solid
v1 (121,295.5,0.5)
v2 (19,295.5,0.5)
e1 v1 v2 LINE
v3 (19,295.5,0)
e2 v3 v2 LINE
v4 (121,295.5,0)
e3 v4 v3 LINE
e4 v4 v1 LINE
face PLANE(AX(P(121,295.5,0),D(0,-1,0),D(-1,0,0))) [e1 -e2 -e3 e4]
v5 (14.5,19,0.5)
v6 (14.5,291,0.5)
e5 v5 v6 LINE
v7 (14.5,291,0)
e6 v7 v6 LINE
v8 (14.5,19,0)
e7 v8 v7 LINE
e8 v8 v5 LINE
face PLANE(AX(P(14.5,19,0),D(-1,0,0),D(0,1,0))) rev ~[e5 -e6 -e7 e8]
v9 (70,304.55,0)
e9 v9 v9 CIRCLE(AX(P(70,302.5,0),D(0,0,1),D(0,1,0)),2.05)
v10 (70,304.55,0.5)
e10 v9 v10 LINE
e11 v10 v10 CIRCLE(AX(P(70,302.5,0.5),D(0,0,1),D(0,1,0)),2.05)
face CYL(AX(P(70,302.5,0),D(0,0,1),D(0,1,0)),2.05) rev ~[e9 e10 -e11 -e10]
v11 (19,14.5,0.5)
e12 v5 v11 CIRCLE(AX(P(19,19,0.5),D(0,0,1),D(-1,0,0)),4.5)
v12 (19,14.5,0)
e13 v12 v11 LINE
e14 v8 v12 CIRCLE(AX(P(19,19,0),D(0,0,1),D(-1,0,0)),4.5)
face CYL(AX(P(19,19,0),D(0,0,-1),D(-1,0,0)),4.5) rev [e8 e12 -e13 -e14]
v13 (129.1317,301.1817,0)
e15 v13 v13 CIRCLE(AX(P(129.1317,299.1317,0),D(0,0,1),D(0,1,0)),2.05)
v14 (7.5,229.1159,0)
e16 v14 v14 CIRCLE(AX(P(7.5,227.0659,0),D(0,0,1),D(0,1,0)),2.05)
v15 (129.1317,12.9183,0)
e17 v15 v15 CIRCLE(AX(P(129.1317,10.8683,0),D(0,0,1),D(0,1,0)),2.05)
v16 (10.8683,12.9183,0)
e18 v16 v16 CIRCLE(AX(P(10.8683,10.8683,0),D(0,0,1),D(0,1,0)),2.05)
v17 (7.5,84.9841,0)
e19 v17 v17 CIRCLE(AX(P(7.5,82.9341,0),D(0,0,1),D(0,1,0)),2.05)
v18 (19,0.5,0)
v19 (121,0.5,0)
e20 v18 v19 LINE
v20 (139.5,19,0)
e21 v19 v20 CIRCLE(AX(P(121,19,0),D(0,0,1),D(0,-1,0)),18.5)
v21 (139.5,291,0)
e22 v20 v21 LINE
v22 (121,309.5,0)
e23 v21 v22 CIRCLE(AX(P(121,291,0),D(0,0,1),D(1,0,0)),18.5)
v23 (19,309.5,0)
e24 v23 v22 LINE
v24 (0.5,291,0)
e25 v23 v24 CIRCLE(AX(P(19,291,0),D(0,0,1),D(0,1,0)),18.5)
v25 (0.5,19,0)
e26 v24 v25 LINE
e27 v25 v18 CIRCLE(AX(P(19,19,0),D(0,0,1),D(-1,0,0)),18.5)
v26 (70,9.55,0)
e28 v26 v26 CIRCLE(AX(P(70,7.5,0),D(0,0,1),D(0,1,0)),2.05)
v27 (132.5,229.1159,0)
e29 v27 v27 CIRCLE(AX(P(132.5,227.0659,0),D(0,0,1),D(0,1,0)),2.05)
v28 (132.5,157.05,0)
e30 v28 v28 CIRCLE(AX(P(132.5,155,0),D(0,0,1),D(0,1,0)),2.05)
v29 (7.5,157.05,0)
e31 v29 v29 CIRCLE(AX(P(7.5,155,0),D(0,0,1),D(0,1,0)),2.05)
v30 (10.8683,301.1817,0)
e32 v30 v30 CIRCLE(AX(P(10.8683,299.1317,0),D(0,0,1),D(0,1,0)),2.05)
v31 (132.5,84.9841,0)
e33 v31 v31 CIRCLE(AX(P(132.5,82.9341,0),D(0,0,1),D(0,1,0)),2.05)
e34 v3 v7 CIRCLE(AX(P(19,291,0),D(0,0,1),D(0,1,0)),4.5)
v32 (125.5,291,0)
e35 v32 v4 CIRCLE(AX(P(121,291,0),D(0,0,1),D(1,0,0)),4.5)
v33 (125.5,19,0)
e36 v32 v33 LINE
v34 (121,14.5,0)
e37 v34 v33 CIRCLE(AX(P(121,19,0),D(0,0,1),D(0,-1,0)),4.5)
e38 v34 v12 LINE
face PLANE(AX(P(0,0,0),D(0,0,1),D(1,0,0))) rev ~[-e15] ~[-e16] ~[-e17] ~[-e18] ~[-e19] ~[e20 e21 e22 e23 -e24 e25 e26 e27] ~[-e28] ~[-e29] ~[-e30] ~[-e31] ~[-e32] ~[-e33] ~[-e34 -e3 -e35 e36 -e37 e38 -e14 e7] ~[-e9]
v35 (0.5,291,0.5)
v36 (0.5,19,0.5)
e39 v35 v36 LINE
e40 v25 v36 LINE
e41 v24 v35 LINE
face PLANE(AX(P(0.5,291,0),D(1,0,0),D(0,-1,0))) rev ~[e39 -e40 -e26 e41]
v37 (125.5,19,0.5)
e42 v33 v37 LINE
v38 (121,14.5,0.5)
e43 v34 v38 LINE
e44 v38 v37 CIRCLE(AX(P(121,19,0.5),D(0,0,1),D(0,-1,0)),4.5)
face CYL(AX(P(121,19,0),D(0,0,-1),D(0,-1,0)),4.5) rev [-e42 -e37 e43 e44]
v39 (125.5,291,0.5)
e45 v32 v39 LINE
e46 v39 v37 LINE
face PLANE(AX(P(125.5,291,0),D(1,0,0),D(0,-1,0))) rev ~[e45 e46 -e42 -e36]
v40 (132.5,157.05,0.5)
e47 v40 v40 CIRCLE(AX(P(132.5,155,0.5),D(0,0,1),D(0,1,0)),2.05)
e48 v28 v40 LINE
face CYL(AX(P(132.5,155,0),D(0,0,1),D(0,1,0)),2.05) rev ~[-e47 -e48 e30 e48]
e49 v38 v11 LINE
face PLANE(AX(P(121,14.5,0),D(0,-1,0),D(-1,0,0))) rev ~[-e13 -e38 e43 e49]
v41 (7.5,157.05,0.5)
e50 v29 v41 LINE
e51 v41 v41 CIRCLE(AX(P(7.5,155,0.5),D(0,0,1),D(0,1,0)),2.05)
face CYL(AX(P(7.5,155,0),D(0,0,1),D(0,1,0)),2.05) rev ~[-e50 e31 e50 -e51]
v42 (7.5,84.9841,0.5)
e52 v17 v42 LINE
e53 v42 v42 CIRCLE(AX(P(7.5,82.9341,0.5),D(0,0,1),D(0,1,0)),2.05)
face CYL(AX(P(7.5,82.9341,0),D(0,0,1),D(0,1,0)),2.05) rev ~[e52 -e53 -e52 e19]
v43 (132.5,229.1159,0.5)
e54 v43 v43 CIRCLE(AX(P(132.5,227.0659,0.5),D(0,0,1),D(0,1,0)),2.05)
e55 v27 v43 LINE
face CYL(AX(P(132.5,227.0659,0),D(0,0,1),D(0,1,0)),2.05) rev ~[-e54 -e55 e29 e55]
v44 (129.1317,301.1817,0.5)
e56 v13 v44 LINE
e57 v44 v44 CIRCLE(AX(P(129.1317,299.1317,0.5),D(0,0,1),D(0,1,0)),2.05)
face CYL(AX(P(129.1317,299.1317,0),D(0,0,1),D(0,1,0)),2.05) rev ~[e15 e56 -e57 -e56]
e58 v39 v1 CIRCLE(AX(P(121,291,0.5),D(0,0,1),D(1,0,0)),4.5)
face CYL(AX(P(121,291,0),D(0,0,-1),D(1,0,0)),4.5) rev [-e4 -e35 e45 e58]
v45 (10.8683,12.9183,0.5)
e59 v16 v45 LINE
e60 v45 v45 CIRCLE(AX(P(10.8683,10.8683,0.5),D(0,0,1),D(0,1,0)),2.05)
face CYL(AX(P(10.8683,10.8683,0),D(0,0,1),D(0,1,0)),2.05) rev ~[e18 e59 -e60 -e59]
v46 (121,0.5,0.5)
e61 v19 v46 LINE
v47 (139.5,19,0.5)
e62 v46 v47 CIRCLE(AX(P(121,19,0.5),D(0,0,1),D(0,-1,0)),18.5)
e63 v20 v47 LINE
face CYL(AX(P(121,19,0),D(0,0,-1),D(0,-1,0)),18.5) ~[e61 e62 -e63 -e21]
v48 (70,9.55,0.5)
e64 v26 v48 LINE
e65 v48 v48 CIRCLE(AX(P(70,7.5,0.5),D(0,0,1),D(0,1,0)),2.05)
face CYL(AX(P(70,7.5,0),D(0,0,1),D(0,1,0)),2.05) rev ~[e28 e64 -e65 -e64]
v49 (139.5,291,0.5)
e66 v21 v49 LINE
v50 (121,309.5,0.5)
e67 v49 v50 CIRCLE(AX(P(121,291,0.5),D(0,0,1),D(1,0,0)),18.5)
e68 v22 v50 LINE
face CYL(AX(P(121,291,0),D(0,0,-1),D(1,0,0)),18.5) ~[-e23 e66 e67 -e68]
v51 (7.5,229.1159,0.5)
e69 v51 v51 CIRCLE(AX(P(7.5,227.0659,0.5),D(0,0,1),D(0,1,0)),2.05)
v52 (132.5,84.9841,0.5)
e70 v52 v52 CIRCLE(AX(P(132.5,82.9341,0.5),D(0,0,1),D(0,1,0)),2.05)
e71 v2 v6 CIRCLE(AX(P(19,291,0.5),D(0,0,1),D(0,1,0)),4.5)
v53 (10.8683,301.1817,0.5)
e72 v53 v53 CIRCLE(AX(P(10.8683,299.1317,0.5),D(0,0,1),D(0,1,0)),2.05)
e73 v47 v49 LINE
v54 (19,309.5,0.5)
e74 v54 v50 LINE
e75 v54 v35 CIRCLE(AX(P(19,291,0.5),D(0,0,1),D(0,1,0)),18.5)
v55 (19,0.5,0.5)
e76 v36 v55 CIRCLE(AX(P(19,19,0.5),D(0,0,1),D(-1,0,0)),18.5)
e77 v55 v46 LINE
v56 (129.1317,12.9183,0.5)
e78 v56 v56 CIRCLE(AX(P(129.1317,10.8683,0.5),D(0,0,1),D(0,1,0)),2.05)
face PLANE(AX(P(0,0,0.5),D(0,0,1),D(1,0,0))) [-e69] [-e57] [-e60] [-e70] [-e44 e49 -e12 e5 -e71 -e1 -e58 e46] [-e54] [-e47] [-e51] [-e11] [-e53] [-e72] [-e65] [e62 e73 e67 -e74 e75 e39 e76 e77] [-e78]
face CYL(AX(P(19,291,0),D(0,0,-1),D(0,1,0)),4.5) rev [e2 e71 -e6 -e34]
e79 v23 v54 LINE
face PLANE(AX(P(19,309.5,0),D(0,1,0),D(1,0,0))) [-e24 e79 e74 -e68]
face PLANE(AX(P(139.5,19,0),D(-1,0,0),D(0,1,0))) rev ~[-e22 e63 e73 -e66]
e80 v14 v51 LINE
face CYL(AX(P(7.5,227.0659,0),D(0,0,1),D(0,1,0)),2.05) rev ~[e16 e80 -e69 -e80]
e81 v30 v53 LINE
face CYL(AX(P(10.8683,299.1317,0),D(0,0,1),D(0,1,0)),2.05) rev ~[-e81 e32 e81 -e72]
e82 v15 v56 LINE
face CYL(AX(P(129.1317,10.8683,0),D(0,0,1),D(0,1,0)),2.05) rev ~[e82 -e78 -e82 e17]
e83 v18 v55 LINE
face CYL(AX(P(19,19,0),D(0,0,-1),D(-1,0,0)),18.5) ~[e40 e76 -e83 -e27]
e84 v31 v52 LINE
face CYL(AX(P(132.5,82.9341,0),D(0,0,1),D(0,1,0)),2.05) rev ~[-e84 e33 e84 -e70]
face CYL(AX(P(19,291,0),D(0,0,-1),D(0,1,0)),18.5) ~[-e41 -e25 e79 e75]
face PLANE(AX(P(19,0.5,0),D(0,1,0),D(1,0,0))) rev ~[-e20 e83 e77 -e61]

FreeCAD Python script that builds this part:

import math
import FreeCAD as App
import Part
import Sketcher
from FreeCAD import Vector
Q = App.Units.Quantity

doc = App.newDocument("Part")
body = doc.addObject("PartDesign::Body", "Body")

sketch1 = body.newObject("Sketcher::SketchObject", "Sketch")
sketch1.AttachmentSupport = (doc.getObject("XY_Plane"), [""])
sketch1.MapMode = "FlatFace"
sketch1.addGeometry(Part.LineSegment(Vector(139.5, 19, 0), Vector(139.5, 291, 0)), False)
sketch1.addGeometry(Part.ArcOfCircle(Part.Circle(Vector(121, 291, 0), Vector(0, 0, 1), 18.5), math.radians(0), math.radians(90)), False)
sketch1.addGeometry(Part.LineSegment(Vector(121, 309.5, 0), Vector(19, 309.5, 0)), False)
sketch1.addGeometry(Part.ArcOfCircle(Part.Circle(Vector(19, 291, 0), Vector(0, 0, 1), 18.5), math.radians(90), math.radians(180)), False)
sketch1.addGeometry(Part.LineSegment(Vector(0.5, 291, 0), Vector(0.5, 19, 0)), False)
sketch1.addGeometry(Part.ArcOfCircle(Part.Circle(Vector(19, 19, 0), Vector(0, 0, 1), 18.5), math.radians(180), math.radians(270)), False)
sketch1.addGeometry(Part.LineSegment(Vector(19, 0.5, 0), Vector(121, 0.5, 0)), False)
sketch1.addGeometry(Part.ArcOfCircle(Part.Circle(Vector(121, 19, 0), Vector(0, 0, 1), 18.5), math.radians(-90), math.radians(0)), False)
sketch1.addGeometry(Part.ArcOfCircle(Part.Circle(Vector(121, 291, 0), Vector(0, 0, 1), 4.5), math.radians(0), math.radians(90)), False)
sketch1.addGeometry(Part.LineSegment(Vector(125.5, 291, 0), Vector(125.5, 19, 0)), False)
sketch1.addGeometry(Part.ArcOfCircle(Part.Circle(Vector(121, 19, 0), Vector(0, 0, 1), 4.5), math.radians(-90), math.radians(0)), False)
sketch1.addGeometry(Part.LineSegment(Vector(121, 14.5, 0), Vector(19, 14.5, 0)), False)
sketch1.addGeometry(Part.ArcOfCircle(Part.Circle(Vector(19, 19, 0), Vector(0, 0, 1), 4.5), math.radians(180), math.radians(270)), False)
sketch1.addGeometry(Part.LineSegment(Vector(14.5, 19, 0), Vector(14.5, 291, 0)), False)
sketch1.addGeometry(Part.ArcOfCircle(Part.Circle(Vector(19, 291, 0), Vector(0, 0, 1), 4.5), math.radians(90), math.radians(180)), False)
sketch1.addGeometry(Part.LineSegment(Vector(19, 295.5, 0), Vector(121, 295.5, 0)), False)
sketch1.addConstraint(Sketcher.Constraint("Tangent", 0, 2, 1, 1))
sketch1.addConstraint(Sketcher.Constraint("Tangent", 1, 2, 2, 1))
sketch1.addConstraint(Sketcher.Constraint("Tangent", 2, 2, 3, 1))
sketch1.addConstraint(Sketcher.Constraint("Tangent", 3, 2, 4, 1))
sketch1.addConstraint(Sketcher.Constraint("Tangent", 4, 2, 5, 1))
sketch1.addConstraint(Sketcher.Constraint("Tangent", 5, 2, 6, 1))
sketch1.addConstraint(Sketcher.Constraint("Tangent", 6, 2, 7, 1))
sketch1.addConstraint(Sketcher.Constraint("Tangent", 7, 2, 0, 1))
sketch1.addConstraint(Sketcher.Constraint("Tangent", 8, 1, 9, 1))
sketch1.addConstraint(Sketcher.Constraint("Tangent", 9, 2, 10, 2))
sketch1.addConstraint(Sketcher.Constraint("Tangent", 10, 1, 11, 1))
sketch1.addConstraint(Sketcher.Constraint("Tangent", 11, 2, 12, 2))
sketch1.addConstraint(Sketcher.Constraint("Tangent", 12, 1, 13, 1))
sketch1.addConstraint(Sketcher.Constraint("Tangent", 13, 2, 14, 2))
sketch1.addConstraint(Sketcher.Constraint("Tangent", 14, 1, 15, 1))
sketch1.addConstraint(Sketcher.Constraint("Tangent", 15, 2, 8, 2))
sketch1.addConstraint(Sketcher.Constraint("Vertical", 0))
sketch1.addConstraint(Sketcher.Constraint("Horizontal", 2))
sketch1.addConstraint(Sketcher.Constraint("Vertical", 4))
sketch1.addConstraint(Sketcher.Constraint("Horizontal", 6))
sketch1.addConstraint(Sketcher.Constraint("Vertical", 9))
sketch1.addConstraint(Sketcher.Constraint("Horizontal", 11))
sketch1.addConstraint(Sketcher.Constraint("Vertical", 13))
sketch1.addConstraint(Sketcher.Constraint("Horizontal", 15))
sketch1.addConstraint(Sketcher.Constraint("Coincident", 8, 3, 1, 3))
sketch1.addConstraint(Sketcher.Constraint("Coincident", 10, 3, 7, 3))
sketch1.addConstraint(Sketcher.Constraint("Coincident", 12, 3, 5, 3))
sketch1.addConstraint(Sketcher.Constraint("Equal", 1, 3))
sketch1.addConstraint(Sketcher.Constraint("Equal", 3, 5))
sketch1.addConstraint(Sketcher.Constraint("Equal", 5, 7))
sketch1.addConstraint(Sketcher.Constraint("Equal", 12, 14))
sketch1.addConstraint(Sketcher.Constraint("DistanceX", -1, 1, 3, 2, Q("0.5 mm")))
sketch1.addConstraint(Sketcher.Constraint("DistanceY", -1, 1, 5, 2, Q("0.5 mm")))
sketch1.addConstraint(Sketcher.Constraint("Radius", 1, Q("18.5 mm")))
sketch1.addConstraint(Sketcher.Constraint("Radius", 8, Q("4.5 mm")))
sketch1.addConstraint(Sketcher.Constraint("DistanceX", 2, 2, 2, 1, Q("102 mm")))
sketch1.addConstraint(Sketcher.Constraint("DistanceY", 0, 1, 0, 2, Q("272 mm")))
pad1 = body.newObject("PartDesign::Pad", "Pad")
pad1.Profile = sketch1
pad1.Length = 0.5

sketch2 = body.newObject("Sketcher::SketchObject", "Sketch001")
sketch2.AttachmentSupport = (doc.getObject("XY_Plane"), [""])
sketch2.MapMode = "FlatFace"
sketch2.addGeometry(Part.Circle(Vector(129.1317, 299.1317, 0), Vector(0, 0, 1), 2.05), False)
sketch2.addGeometry(Part.Circle(Vector(70, 302.5, 0), Vector(0, 0, 1), 2.05), False)
sketch2.addGeometry(Part.Circle(Vector(10.8683, 299.1317, 0), Vector(0, 0, 1), 2.05), False)
sketch2.addGeometry(Part.Circle(Vector(7.5, 227.0659, 0), Vector(0, 0, 1), 2.05), False)
sketch2.addGeometry(Part.Circle(Vector(132.5, 227.0659, 0), Vector(0, 0, 1), 2.05), False)
sketch2.addGeometry(Part.Circle(Vector(132.5, 155, 0), Vector(0, 0, 1), 2.05), False)
sketch2.addGeometry(Part.Circle(Vector(7.5, 155, 0), Vector(0, 0, 1), 2.05), False)
sketch2.addGeometry(Part.Circle(Vector(132.5, 82.9341, 0), Vector(0, 0, 1), 2.05), False)
sketch2.addGeometry(Part.Circle(Vector(129.1317, 10.8683, 0), Vector(0, 0, 1), 2.05), False)
sketch2.addGeometry(Part.Circle(Vector(70, 7.5, 0), Vector(0, 0, 1), 2.05), False)
sketch2.addGeometry(Part.Circle(Vector(10.8683, 10.8683, 0), Vector(0, 0, 1), 2.05), False)
sketch2.addGeometry(Part.Circle(Vector(7.5, 82.9341, 0), Vector(0, 0, 1), 2.05), False)
sketch2.addConstraint(Sketcher.Constraint("Equal", 0, 1))
sketch2.addConstraint(Sketcher.Constraint("Equal", 1, 2))
sketch2.addConstraint(Sketcher.Constraint("Equal", 2, 3))
sketch2.addConstraint(Sketcher.Constraint("Equal", 3, 4))
sketch2.addConstraint(Sketcher.Constraint("Equal", 4, 5))
sketch2.addConstraint(Sketcher.Constraint("Equal", 5, 6))
sketch2.addConstraint(Sketcher.Constraint("Equal", 6, 7))
sketch2.addConstraint(Sketcher.Constraint("Equal", 7, 8))
sketch2.addConstraint(Sketcher.Constraint("Equal", 8, 9))
sketch2.addConstraint(Sketcher.Constraint("Equal", 9, 10))
sketch2.addConstraint(Sketcher.Constraint("Equal", 10, 11))
sketch2.addConstraint(Sketcher.Constraint("Horizontal", 0, 3, 2, 3))
sketch2.addConstraint(Sketcher.Constraint("Horizontal", 3, 3, 4, 3))
sketch2.addConstraint(Sketcher.Constraint("Horizontal", 5, 3, 6, 3))
sketch2.addConstraint(Sketcher.Constraint("Horizontal", 8, 3, 10, 3))
sketch2.addConstraint(Sketcher.Constraint("Horizontal", 7, 3, 11, 3))
sketch2.addConstraint(Sketcher.Constraint("Vertical", 4, 3, 5, 3))
sketch2.addConstraint(Sketcher.Constraint("Vertical", 3, 3, 6, 3))
sketch2.addConstraint(Sketcher.Constraint("Vertical", 5, 3, 7, 3))
sketch2.addConstraint(Sketcher.Constraint("Vertical", 0, 3, 8, 3))
sketch2.addConstraint(Sketcher.Constraint("Vertical", 1, 3, 9, 3))
sketch2.addConstraint(Sketcher.Constraint("Vertical", 2, 3, 10, 3))
sketch2.addConstraint(Sketcher.Constraint("Vertical", 6, 3, 11, 3))
sketch2.addConstraint(Sketcher.Constraint("Diameter", 0, Q("4.1 mm")))
sketch2.addConstraint(Sketcher.Constraint("DistanceX", -1, 1, 1, 3, Q("70 mm")))
sketch2.addConstraint(Sketcher.Constraint("DistanceY", -1, 1, 5, 3, Q("155 mm")))
sketch2.addConstraint(Sketcher.Constraint("DistanceX", 3, 3, 4, 3, Q("125 mm")))
sketch2.addConstraint(Sketcher.Constraint("DistanceY", -1, 1, 1, 3, Q("302.5 mm")))
sketch2.addConstraint(Sketcher.Constraint("DistanceX", -1, 1, 3, 3, Q("7.5 mm")))
sketch2.addConstraint(Sketcher.Constraint("DistanceY", -1, 1, 9, 3, Q("7.5 mm")))
sketch2.addConstraint(Sketcher.Constraint("DistanceY", -1, 1, 3, 3, Q("227.066 mm")))
sketch2.addConstraint(Sketcher.Constraint("DistanceY", -1, 1, 7, 3, Q("82.934 mm")))
sketch2.addConstraint(Sketcher.Constraint("DistanceX", -1, 1, 0, 3, Q("129.1317 mm")))
sketch2.addConstraint(Sketcher.Constraint("DistanceY", -1, 1, 0, 3, Q("299.1317 mm")))
sketch2.addConstraint(Sketcher.Constraint("DistanceX", -1, 1, 2, 3, Q("10.8683 mm")))
sketch2.addConstraint(Sketcher.Constraint("DistanceY", -1, 1, 8, 3, Q("10.8683 mm")))
doc.recompute()
hole = body.newObject("PartDesign::Hole", "Hole")
hole.Profile = sketch2
hole.ThreadType = "None"
hole.Diameter = 4.1
hole.DepthType = "ThroughAll"
hole.Reversed = True

doc.recompute()
